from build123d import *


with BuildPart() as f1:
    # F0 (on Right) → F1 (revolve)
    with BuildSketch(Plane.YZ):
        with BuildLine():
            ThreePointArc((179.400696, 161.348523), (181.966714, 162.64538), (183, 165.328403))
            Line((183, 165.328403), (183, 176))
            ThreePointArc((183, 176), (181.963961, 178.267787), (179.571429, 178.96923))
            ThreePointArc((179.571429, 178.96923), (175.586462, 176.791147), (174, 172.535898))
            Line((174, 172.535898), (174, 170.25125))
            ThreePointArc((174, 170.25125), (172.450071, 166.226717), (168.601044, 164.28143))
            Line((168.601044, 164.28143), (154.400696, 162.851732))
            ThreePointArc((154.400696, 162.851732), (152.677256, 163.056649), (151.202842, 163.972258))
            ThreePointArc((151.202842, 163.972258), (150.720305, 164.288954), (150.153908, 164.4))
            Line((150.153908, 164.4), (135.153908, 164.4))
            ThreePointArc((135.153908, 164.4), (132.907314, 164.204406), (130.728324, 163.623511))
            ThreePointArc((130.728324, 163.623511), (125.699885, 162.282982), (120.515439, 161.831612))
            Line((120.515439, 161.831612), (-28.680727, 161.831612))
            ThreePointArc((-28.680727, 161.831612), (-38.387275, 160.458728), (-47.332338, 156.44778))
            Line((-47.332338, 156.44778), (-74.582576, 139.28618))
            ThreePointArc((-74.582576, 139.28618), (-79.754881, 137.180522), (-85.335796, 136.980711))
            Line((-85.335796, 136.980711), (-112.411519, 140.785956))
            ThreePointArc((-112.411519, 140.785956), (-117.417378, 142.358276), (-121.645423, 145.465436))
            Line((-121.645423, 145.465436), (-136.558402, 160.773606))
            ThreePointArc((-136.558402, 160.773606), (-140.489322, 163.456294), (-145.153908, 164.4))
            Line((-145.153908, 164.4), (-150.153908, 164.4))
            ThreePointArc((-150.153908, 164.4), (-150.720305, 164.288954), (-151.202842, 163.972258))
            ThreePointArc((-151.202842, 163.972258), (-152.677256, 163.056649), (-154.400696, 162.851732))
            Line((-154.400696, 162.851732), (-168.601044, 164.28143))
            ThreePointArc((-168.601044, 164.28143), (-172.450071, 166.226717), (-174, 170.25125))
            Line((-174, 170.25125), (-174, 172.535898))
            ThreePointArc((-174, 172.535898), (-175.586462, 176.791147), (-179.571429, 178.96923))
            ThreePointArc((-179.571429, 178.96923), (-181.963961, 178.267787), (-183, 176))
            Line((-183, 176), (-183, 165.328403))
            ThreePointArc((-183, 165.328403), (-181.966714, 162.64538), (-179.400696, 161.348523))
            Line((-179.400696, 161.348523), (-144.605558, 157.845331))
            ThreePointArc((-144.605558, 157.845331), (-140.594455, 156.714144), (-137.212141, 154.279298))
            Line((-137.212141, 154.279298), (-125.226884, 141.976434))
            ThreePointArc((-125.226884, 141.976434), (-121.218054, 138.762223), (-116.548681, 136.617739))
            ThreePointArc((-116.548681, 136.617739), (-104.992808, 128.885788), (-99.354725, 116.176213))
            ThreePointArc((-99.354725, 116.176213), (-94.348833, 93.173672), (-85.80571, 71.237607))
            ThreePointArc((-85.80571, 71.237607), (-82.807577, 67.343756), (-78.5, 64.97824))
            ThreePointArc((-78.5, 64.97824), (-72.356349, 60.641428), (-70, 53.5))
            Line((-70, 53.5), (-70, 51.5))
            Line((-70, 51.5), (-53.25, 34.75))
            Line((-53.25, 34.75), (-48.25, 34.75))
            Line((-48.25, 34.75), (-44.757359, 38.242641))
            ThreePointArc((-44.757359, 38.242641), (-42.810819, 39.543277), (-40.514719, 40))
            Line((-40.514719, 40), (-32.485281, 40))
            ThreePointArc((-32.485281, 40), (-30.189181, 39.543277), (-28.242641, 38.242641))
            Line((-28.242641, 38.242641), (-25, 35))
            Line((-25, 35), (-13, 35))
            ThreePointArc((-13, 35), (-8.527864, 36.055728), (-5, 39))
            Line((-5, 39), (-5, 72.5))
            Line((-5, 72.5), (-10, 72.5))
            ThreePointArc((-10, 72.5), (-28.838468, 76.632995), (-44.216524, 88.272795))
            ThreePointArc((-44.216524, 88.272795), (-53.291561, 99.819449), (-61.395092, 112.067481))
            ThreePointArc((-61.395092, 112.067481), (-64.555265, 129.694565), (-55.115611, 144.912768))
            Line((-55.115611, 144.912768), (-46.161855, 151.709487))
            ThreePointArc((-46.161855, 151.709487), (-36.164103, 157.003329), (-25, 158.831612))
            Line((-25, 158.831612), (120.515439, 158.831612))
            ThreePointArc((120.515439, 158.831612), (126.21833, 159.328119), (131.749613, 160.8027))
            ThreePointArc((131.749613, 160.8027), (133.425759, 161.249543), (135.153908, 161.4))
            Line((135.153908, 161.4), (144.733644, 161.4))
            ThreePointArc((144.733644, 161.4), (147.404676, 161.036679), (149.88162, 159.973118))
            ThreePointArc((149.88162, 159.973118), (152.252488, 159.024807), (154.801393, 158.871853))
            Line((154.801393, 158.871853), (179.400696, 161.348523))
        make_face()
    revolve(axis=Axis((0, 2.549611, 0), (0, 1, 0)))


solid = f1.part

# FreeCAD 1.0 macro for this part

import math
import FreeCAD as App
import Part
import Sketcher
Q = App.Units.Quantity

doc = App.newDocument("Part")
body = doc.addObject("PartDesign::Body", "Body")

# Sketch on YZ plane
sketch1 = body.newObject("Sketcher::SketchObject", "Sketch")
sketch1.AttachmentSupport = (doc.getObject("YZ_Plane"), [""])
sketch1.MapMode = "FlatFace"
sketch1.addGeometry([
    Part.ArcOfCircle(Part.Circle(App.Vector(179, 165.3, 0), App.Vector(0, 0, 1), 4), math.radians(-84), math.radians(0)),  # 0
    Part.LineSegment(App.Vector(183, 165.3, 0), App.Vector(183, 176, 0)),  # 1
    Part.ArcOfCircle(Part.Circle(App.Vector(180, 176, 0), App.Vector(0, 0, 1), 3), math.radians(0), math.radians(98)),  # 2
    Part.ArcOfCircle(Part.Circle(App.Vector(180.5, 172.5, 0), App.Vector(0, 0, 1), 6.5), math.radians(98), math.radians(180)),  # 3
    Part.LineSegment(App.Vector(174, 172.5, 0), App.Vector(174, 170.3, 0)),  # 4
    Part.ArcOfCircle(Part.Circle(App.Vector(168, 170.3, 0), App.Vector(0, 0, 1), 6), math.radians(-84), math.radians(0)),  # 5
    Part.LineSegment(App.Vector(168.6, 164.3, 0), App.Vector(154.4, 162.9, 0)),  # 6
    Part.ArcOfCircle(Part.Circle(App.Vector(154, 166.8, 0), App.Vector(0, 0, 1), 4), math.radians(-134), math.radians(-84)),  # 7
    Part.ArcOfCircle(Part.Circle(App.Vector(150.2, 162.9, 0), App.Vector(0, 0, 1), 1.5), math.radians(46), math.radians(90)),  # 8
    Part.LineSegment(App.Vector(150.2, 164.4, 0), App.Vector(135.2, 164.4, 0)),  # 9
    Part.ArcOfCircle(Part.Circle(App.Vector(135.2, 151.4, 0), App.Vector(0, 0, 1), 13), math.radians(90), math.radians(109.9)),  # 10
    Part.ArcOfCircle(Part.Circle(App.Vector(120.5, 191.8, 0), App.Vector(0, 0, 1), 30), math.radians(-90), math.radians(-70.1)),  # 11
    Part.LineSegment(App.Vector(120.5, 161.8, 0), App.Vector(-28.7, 161.8, 0)),  # 12
    Part.ArcOfCircle(Part.Circle(App.Vector(-28.7, 126.8, 0), App.Vector(0, 0, 1), 35), math.radians(90), math.radians(122)),  # 13
    Part.LineSegment(App.Vector(-47.3, 156.4, 0), App.Vector(-74.6, 139.3, 0)),  # 14
    Part.ArcOfCircle(Part.Circle(App.Vector(-83.1, 152.8, 0), App.Vector(0, 0, 1), 16), math.radians(-98), math.radians(-58)),  # 15
    Part.LineSegment(App.Vector(-85.3, 137, 0), App.Vector(-112.4, 140.8, 0)),  # 16
    Part.ArcOfCircle(Part.Circle(App.Vector(-110.2, 156.6, 0), App.Vector(0, 0, 1), 16), math.radians(-136), math.radians(-98)),  # 17
    Part.LineSegment(App.Vector(-121.6, 145.5, 0), App.Vector(-136.6, 160.8, 0)),  # 18
    Part.ArcOfCircle(Part.Circle(App.Vector(-145.2, 152.4, 0), App.Vector(0, 0, 1), 12), math.radians(44), math.radians(90)),  # 19
    Part.LineSegment(App.Vector(-145.2, 164.4, 0), App.Vector(-150.2, 164.4, 0)),  # 20
    Part.ArcOfCircle(Part.Circle(App.Vector(-150.2, 162.9, 0), App.Vector(0, 0, 1), 1.5), math.radians(90), math.radians(134)),  # 21
    Part.ArcOfCircle(Part.Circle(App.Vector(-154, 166.8, 0), App.Vector(0, 0, 1), 4), math.radians(-96), math.radians(-46)),  # 22
    Part.LineSegment(App.Vector(-154.4, 162.9, 0), App.Vector(-168.6, 164.3, 0)),  # 23
    Part.ArcOfCircle(Part.Circle(App.Vector(-168, 170.3, 0), App.Vector(0, 0, 1), 6), math.radians(-180), math.radians(-96)),  # 24
    Part.LineSegment(App.Vector(-174, 170.3, 0), App.Vector(-174, 172.5, 0)),  # 25
    Part.ArcOfCircle(Part.Circle(App.Vector(-180.5, 172.5, 0), App.Vector(0, 0, 1), 6.5), math.radians(0), math.radians(82)),  # 26
    Part.ArcOfCircle(Part.Circle(App.Vector(-180, 176, 0), App.Vector(0, 0, 1), 3), math.radians(82), math.radians(180)),  # 27
    Part.LineSegment(App.Vector(-183, 176, 0), App.Vector(-183, 165.3, 0)),  # 28
    Part.ArcOfCircle(Part.Circle(App.Vector(-179, 165.3, 0), App.Vector(0, 0, 1), 4), math.radians(180), math.radians(264)),  # 29
    Part.LineSegment(App.Vector(-179.4, 161.3, 0), App.Vector(-144.6, 157.8, 0)),  # 30
    Part.ArcOfCircle(Part.Circle(App.Vector(-145.8, 145.9, 0), App.Vector(0, 0, 1), 12), math.radians(44), math.radians(84)),  # 31
    Part.LineSegment(App.Vector(-137.2, 154.3, 0), App.Vector(-125.2, 142, 0)),  # 32
    Part.ArcOfCircle(Part.Circle(App.Vector(-110.2, 156.6, 0), App.Vector(0, 0, 1), 21), math.radians(-136), math.radians(-108)),  # 33
    Part.ArcOfCircle(Part.Circle(App.Vector(-124.1, 112.8, 0), App.Vector(0, 0, 1), 25), math.radians(8), math.radians(72)),  # 34
    Part.ArcOfCircle(Part.Circle(App.Vector(49.3, 136.5, 0), App.Vector(0, 0, 1), 150), math.radians(-172.22), math.radians(-154.22)),  # 35
    Part.ArcOfCircle(Part.Circle(App.Vector(-75, 76.5, 0), App.Vector(0, 0, 1), 12), math.radians(-154), math.radians(-107)),  # 36
    Part.ArcOfCircle(Part.Circle(App.Vector(-82, 53.5, 0), App.Vector(0, 0, 1), 12), math.radians(0), math.radians(73)),  # 37
    Part.LineSegment(App.Vector(-70, 53.5, 0), App.Vector(-70, 51.5, 0)),  # 38
    Part.LineSegment(App.Vector(-70, 51.5, 0), App.Vector(-53.2, 34.8, 0)),  # 39
    Part.LineSegment(App.Vector(-53.2, 34.8, 0), App.Vector(-48.2, 34.8, 0)),  # 40
    Part.LineSegment(App.Vector(-48.2, 34.8, 0), App.Vector(-44.8, 38.2, 0)),  # 41
    Part.ArcOfCircle(Part.Circle(App.Vector(-40.5, 34, 0), App.Vector(0, 0, 1), 6), math.radians(90), math.radians(135)),  # 42
    Part.LineSegment(App.Vector(-40.5, 40, 0), App.Vector(-32.5, 40, 0)),  # 43
    Part.ArcOfCircle(Part.Circle(App.Vector(-32.5, 34, 0), App.Vector(0, 0, 1), 6), math.radians(45), math.radians(90)),  # 44
    Part.LineSegment(App.Vector(-28.2, 38.2, 0), App.Vector(-25, 35, 0)),  # 45
    Part.LineSegment(App.Vector(-25, 35, 0), App.Vector(-13, 35, 0)),  # 46
    Part.ArcOfCircle(Part.Circle(App.Vector(-13, 45, 0), App.Vector(0, 0, 1), 10), math.radians(-90), math.radians(-37)),  # 47
    Part.LineSegment(App.Vector(-5, 39, 0), App.Vector(-5, 72.5, 0)),  # 48
    Part.LineSegment(App.Vector(-5, 72.5, 0), App.Vector(-10, 72.5, 0)),  # 49
    Part.ArcOfCircle(Part.Circle(App.Vector(-10, 117.5, 0), App.Vector(0, 0, 1), 45), math.radians(-139), math.radians(-90)),  # 50
    Part.ArcOfCircle(Part.Circle(App.Vector(92.6, 205.2, 0), App.Vector(0, 0, 1), 180), math.radians(-148.85), math.radians(-139.5)),  # 51
    Part.ArcOfCircle(Part.Circle(App.Vector(-40, 125, 0), App.Vector(0, 0, 1), 25), math.radians(127), math.radians(211)),  # 52
    Part.LineSegment(App.Vector(-55.1, 144.9, 0), App.Vector(-46.2, 151.7, 0)),  # 53
    Part.ArcOfCircle(Part.Circle(App.Vector(-25, 123.8, 0), App.Vector(0, 0, 1), 35), math.radians(90), math.radians(127)),  # 54
    Part.LineSegment(App.Vector(-25, 158.8, 0), App.Vector(120.5, 158.8, 0)),  # 55
    Part.ArcOfCircle(Part.Circle(App.Vector(120.5, 191.8, 0), App.Vector(0, 0, 1), 33), math.radians(-90), math.radians(-70.1)),  # 56
    Part.ArcOfCircle(Part.Circle(App.Vector(135.2, 151.4, 0), App.Vector(0, 0, 1), 10), math.radians(90), math.radians(109.9)),  # 57
    Part.LineSegment(App.Vector(135.2, 161.4, 0), App.Vector(144.7, 161.4, 0)),  # 58
    Part.ArcOfCircle(Part.Circle(App.Vector(144.7, 151.4, 0), App.Vector(0, 0, 1), 10), math.radians(59), math.radians(90)),  # 59
    Part.ArcOfCircle(Part.Circle(App.Vector(154, 166.8, 0), App.Vector(0, 0, 1), 8), math.radians(-121), math.radians(-84)),  # 60
    Part.LineSegment(App.Vector(154.8, 158.9, 0), App.Vector(179.4, 161.3, 0)),  # 61
], False)
sketch1.addConstraint([
    Sketcher.Constraint("Tangent", 0, 2, 1, 1),
    Sketcher.Constraint("Tangent", 1, 2, 2, 1),
    Sketcher.Constraint("Tangent", 2, 2, 3, 1),
    Sketcher.Constraint("Tangent", 3, 2, 4, 1),
    Sketcher.Constraint("Tangent", 4, 2, 5, 2),
    Sketcher.Constraint("Tangent", 5, 1, 6, 1),
    Sketcher.Constraint("Tangent", 6, 2, 7, 2),
    Sketcher.Constraint("Tangent", 7, 1, 8, 1),
    Sketcher.Constraint("Tangent", 8, 2, 9, 1),
    Sketcher.Constraint("Tangent", 9, 2, 10, 1),
    Sketcher.Constraint("Tangent", 10, 2, 11, 2),
    Sketcher.Constraint("Tangent", 11, 1, 12, 1),
    Sketcher.Constraint("Tangent", 12, 2, 13, 1),
    Sketcher.Constraint("Tangent", 13, 2, 14, 1),
    Sketcher.Constraint("Tangent", 14, 2, 15, 2),
    Sketcher.Constraint("Tangent", 15, 1, 16, 1),
    Sketcher.Constraint("Tangent", 16, 2, 17, 2),
    Sketcher.Constraint("Tangent", 17, 1, 18, 1),
    Sketcher.Constraint("Tangent", 18, 2, 19, 1),
    Sketcher.Constraint("Tangent", 19, 2, 20, 1),
    Sketcher.Constraint("Tangent", 20, 2, 21, 1),
    Sketcher.Constraint("Tangent", 21, 2, 22, 2),
    Sketcher.Constraint("Tangent", 22, 1, 23, 1),
    Sketcher.Constraint("Tangent", 23, 2, 24, 2),
    Sketcher.Constraint("Tangent", 24, 1, 25, 1),
    Sketcher.Constraint("Tangent", 25, 2, 26, 1),
    Sketcher.Constraint("Tangent", 26, 2, 27, 1),
    Sketcher.Constraint("Tangent", 27, 2, 28, 1),
    Sketcher.Constraint("Tangent", 28, 2, 29, 1),
    Sketcher.Constraint("Tangent", 29, 2, 30, 1),
    Sketcher.Constraint("Tangent", 30, 2, 31, 2),
    Sketcher.Constraint("Tangent", 31, 1, 32, 1),
    Sketcher.Constraint("Tangent", 32, 2, 33, 1),
    Sketcher.Constraint("Tangent", 33, 2, 34, 2),
    Sketcher.Constraint("Tangent", 34, 1, 35, 1),
    Sketcher.Constraint("Tangent", 35, 2, 36, 1),
    Sketcher.Constraint("Tangent", 36, 2, 37, 2),
    Sketcher.Constraint("Tangent", 37, 1, 38, 1),
    Sketcher.Constraint("Coincident", 38, 2, 39, 1),
    Sketcher.Constraint("Coincident", 39, 2, 40, 1),
    Sketcher.Constraint("Coincident", 40, 2, 41, 1),
    Sketcher.Constraint("Tangent", 41, 2, 42, 2),
    Sketcher.Constraint("Tangent", 42, 1, 43, 1),
    Sketcher.Constraint("Tangent", 43, 2, 44, 2),
    Sketcher.Constraint("Tangent", 44, 1, 45, 1),
    Sketcher.Constraint("Coincident", 45, 2, 46, 1),
    Sketcher.Constraint("Tangent", 46, 2, 47, 1),
    Sketcher.Constraint("Coincident", 47, 2, 48, 1),
    Sketcher.Constraint("Coincident", 48, 2, 49, 1),
    Sketcher.Constraint("Tangent", 49, 2, 50, 2),
    Sketcher.Constraint("Tangent", 50, 1, 51, 2),
    Sketcher.Constraint("Tangent", 51, 1, 52, 2),
    Sketcher.Constraint("Tangent", 52, 1, 53, 1),
    Sketcher.Constraint("Tangent", 53, 2, 54, 2),
    Sketcher.Constraint("Tangent", 54, 1, 55, 1),
    Sketcher.Constraint("Tangent", 55, 2, 56, 1),
    Sketcher.Constraint("Tangent", 56, 2, 57, 2),
    Sketcher.Constraint("Tangent", 57, 1, 58, 1),
    Sketcher.Constraint("Tangent", 58, 2, 59, 2),
    Sketcher.Constraint("Tangent", 59, 1, 60, 1),
    Sketcher.Constraint("Tangent", 60, 2, 61, 1),
    Sketcher.Constraint("Tangent", 61, 2, 0, 1),
    Sketcher.Constraint("Vertical", 1),
    Sketcher.Constraint("Vertical", 4),
    Sketcher.Constraint("Horizontal", 9),
    Sketcher.Constraint("Horizontal", 12),
    Sketcher.Constraint("Horizontal", 20),
    Sketcher.Constraint("Vertical", 25),
    Sketcher.Constraint("Vertical", 28),
    Sketcher.Constraint("Vertical", 38),
    Sketcher.Constraint("Horizontal", 40),
    Sketcher.Constraint("Horizontal", 43),
    Sketcher.Constraint("Horizontal", 46),
    Sketcher.Constraint("Vertical", 48),
    Sketcher.Constraint("Horizontal", 49),
    Sketcher.Constraint("Horizontal", 55),
    Sketcher.Constraint("Horizontal", 58),
    Sketcher.Constraint("Coincident", 33, 3, 17, 3),
    Sketcher.Constraint("Equal", 8, 21),
    Sketcher.Constraint("Equal", 7, 22),
    Sketcher.Constraint("Equal", 5, 24),
    Sketcher.Constraint("Equal", 3, 26),
    Sketcher.Constraint("Equal", 2, 27),
    Sketcher.Constraint("Equal", 0, 29),
    Sketcher.Constraint("Equal", 19, 36),
    Sketcher.Constraint("Equal", 36, 37),
    Sketcher.Constraint("Equal", 24, 42),
    Sketcher.Constraint("Equal", 42, 44),
    Sketcher.Constraint("Equal", 34, 52),
    Sketcher.Constraint("Equal", 47, 57),
    Sketcher.Constraint("Symmetric", 8, 3, 21, 3, -2),
    Sketcher.Constraint("Symmetric", 5, 3, 24, 3, -2),
    Sketcher.Constraint("Symmetric", 2, 3, 27, 3, -2),
    Sketcher.Constraint("Symmetric", 29, 2, 61, 2, -2),
    Sketcher.Constraint("Parallel", 23, 30),
    Sketcher.Constraint("Parallel", 18, 32),
    Sketcher.Constraint("Perpendicular", 39, 41),
    Sketcher.Constraint("Perpendicular", 41, 45),
    Sketcher.Constraint("Parallel", 6, 61),
    Sketcher.Constraint("Horizontal", 41, 2, 44, 1),
    Sketcher.Constraint("Vertical", 11, 3, 56, 3),
    Sketcher.Constraint("Vertical", 10, 3, 57, 3),
    Sketcher.Constraint("Vertical", 54, 3, 45, 2),
    Sketcher.Constraint("Equal", 20, 40),
    Sketcher.Constraint("Equal", 40, 49),
    Sketcher.Constraint("Radius", 0, Q("3.999999 mm")),
    Sketcher.Constraint("Radius", 2, Q("3 mm")),
    Sketcher.Constraint("Radius", 5, Q("6.000001 mm")),
    Sketcher.Constraint("Radius", 13, Q("34.999998 mm")),
    Sketcher.Constraint("Radius", 19, Q("12 mm")),
    Sketcher.Constraint("Radius", 34, Q("25.000001 mm")),
    Sketcher.Constraint("Radius", 47, Q("9.999999 mm")),
    Sketcher.Constraint("Radius", 54, Q("35.000002 mm")),
    Sketcher.Constraint("Radius", 56, Q("33 mm")),
    Sketcher.Constraint("Radius", 3, Q("6.500001 mm")),
    Sketcher.Constraint("DistanceX", 9, 2, 9, 1, Q("15 mm")),
    Sketcher.Constraint("DistanceX", 20, 2, 20, 1, Q("5 mm")),
    Sketcher.Constraint("DistanceX", 46, 1, 46, 2, Q("12 mm")),
    Sketcher.Constraint("DistanceY", 38, 2, 38, 1, Q("2 mm")),
    Sketcher.Constraint("Angle", 16, Q("171.999999 deg")),
    Sketcher.Constraint("DistanceY", 48, 1, 48, 2, Q("33.5 mm")),
    Sketcher.Constraint("DistanceX", -1, 1, 0, 3, Q("179.000001 mm")),
    Sketcher.Constraint("DistanceY", -1, 1, 2, 3, Q("176 mm")),
    Sketcher.Constraint("DistanceX", -1, 1, 5, 3, Q("167.999999 mm")),
    Sketcher.Constraint("DistanceX", -1, 1, 7, 3, Q("154.000002 mm")),
    Sketcher.Constraint("DistanceX", 36, 3, -1, 1, Q("75 mm")),
    Sketcher.Constraint("DistanceX", 37, 3, -1, 1, Q("82 mm")),
    Sketcher.Constraint("DistanceX", 47, 3, -1, 1, Q("13 mm")),
    Sketcher.Constraint("DistanceY", -1, 1, 47, 3, Q("44.999999 mm")),
    Sketcher.Constraint("DistanceX", 50, 3, -1, 1, Q("9.999998 mm")),
    Sketcher.Constraint("DistanceY", -1, 1, 52, 3, Q("125 mm")),
    Sketcher.Constraint("DistanceY", -1, 1, 42, 1, Q("40 mm")),
    Sketcher.Constraint("DistanceY", -1, 1, 19, 3, Q("152.4 mm")),
    Sketcher.Constraint("DistanceY", -1, 1, 37, 3, Q("53.5 mm")),
    Sketcher.Constraint("DistanceY", -1, 1, 57, 3, Q("151.400002 mm")),
    Sketcher.Constraint("Radius", 51, Q("180.000099 mm")),
    Sketcher.Constraint("DistanceX", 39, 2, -1, 1, Q("53.25 mm")),
    Sketcher.Constraint("Radius", 15, Q("16.000008 mm")),
    Sketcher.Constraint("Radius", 17, Q("15.99999 mm")),
    Sketcher.Constraint("Radius", 33, Q("20.999989 mm")),
    Sketcher.Constraint("Radius", 60, Q("7.99999 mm")),
    Sketcher.Constraint("Radius", 7, Q("4.000003 mm")),
    Sketcher.Constraint("Radius", 8, Q("1.500005 mm")),
    Sketcher.Constraint("Radius", 10, Q("13.000025 mm")),
    Sketcher.Constraint("Radius", 11, Q("29.999973 mm")),
    Sketcher.Constraint("Radius", 31, Q("11.999996 mm")),
    Sketcher.Constraint("Radius", 35, Q("149.999995 mm")),
    Sketcher.Constraint("Radius", 50, Q("45.000004 mm")),
    Sketcher.Constraint("Radius", 59, Q("10.000014 mm")),
    Sketcher.Constraint("DistanceX", 55, 1, 55, 2, Q("145.515439 mm")),
    Sketcher.Constraint("DistanceY", 4, 2, 4, 1, Q("2.284648 mm")),
    Sketcher.Constraint("DistanceY", -1, 1, 0, 3, Q("165.328402 mm")),
    Sketcher.Constraint("DistanceY", -1, 1, 60, 3, Q("166.831602 mm")),
    Sketcher.Constraint("DistanceX", 18, 2, -1, 1, Q("136.558402 mm")),
    Sketcher.Constraint("Distance", 16, Q("27.341812 mm")),
    Sketcher.Constraint("DistanceX", 12, 2, 12, 1, Q("149.196166 mm")),
    Sketcher.Constraint("DistanceX", 58, 1, 58, 2, Q("9.579736 mm")),
    Sketcher.Constraint("DistanceY", -1, 1, 15, 3, Q("152.825009 mm")),
    Sketcher.Constraint("DistanceX", 34, 3, -1, 1, Q("124.12479 mm")),
    Sketcher.Constraint("DistanceX", -1, 1, 51, 3, Q("92.649651 mm")),
])
revolution = body.newObject("PartDesign::Revolution", "Revolution")
revolution.Profile = sketch1
revolution.ReferenceAxis = (sketch1, ["H_Axis"])
revolution.Angle = 360

doc.recompute()
